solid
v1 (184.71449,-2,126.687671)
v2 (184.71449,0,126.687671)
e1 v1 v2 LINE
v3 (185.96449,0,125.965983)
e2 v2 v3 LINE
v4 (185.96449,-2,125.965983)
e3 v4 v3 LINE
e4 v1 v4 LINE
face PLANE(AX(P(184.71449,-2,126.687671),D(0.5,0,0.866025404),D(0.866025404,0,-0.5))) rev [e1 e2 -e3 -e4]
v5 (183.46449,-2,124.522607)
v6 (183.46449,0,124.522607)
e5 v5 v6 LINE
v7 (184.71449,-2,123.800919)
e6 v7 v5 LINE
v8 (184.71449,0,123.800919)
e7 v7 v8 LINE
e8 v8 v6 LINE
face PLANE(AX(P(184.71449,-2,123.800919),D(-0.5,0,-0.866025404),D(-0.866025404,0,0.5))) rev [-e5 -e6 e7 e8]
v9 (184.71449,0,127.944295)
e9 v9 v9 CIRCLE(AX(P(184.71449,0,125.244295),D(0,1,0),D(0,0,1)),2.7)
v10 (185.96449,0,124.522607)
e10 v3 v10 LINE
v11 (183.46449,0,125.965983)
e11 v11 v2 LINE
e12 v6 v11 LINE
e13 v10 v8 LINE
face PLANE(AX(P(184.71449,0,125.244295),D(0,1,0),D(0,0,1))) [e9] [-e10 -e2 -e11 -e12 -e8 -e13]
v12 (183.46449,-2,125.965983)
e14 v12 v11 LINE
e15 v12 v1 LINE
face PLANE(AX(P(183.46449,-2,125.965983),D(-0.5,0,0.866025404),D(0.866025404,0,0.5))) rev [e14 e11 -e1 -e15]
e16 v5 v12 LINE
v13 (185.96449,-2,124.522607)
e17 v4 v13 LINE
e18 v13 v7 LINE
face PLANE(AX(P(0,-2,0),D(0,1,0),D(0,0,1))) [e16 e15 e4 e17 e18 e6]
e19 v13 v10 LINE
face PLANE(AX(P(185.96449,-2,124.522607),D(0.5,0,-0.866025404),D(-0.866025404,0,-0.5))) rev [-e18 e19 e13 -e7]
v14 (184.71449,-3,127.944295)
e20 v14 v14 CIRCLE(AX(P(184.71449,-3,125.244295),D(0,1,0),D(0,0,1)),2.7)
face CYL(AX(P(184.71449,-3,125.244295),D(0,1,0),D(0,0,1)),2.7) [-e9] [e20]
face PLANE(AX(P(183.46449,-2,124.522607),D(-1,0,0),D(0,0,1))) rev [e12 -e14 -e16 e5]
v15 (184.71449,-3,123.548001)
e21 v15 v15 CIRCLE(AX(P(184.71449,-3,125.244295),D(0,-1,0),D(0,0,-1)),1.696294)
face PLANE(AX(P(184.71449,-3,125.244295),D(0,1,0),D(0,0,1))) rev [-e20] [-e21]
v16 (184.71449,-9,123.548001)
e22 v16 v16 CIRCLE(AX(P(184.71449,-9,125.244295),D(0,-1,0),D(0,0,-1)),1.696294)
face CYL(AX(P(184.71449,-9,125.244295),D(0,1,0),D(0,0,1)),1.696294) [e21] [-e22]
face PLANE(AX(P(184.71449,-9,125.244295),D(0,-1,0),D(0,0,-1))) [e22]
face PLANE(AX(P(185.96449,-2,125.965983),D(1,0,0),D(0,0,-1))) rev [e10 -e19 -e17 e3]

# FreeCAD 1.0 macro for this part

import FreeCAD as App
import Part
import Sketcher
from FreeCAD import Vector
Q = App.Units.Quantity

doc = App.newDocument("Part")
body = doc.addObject("PartDesign::Body", "Body")

# Sketch on XZ plane
sketch1 = doc.addObject("Sketcher::SketchObject", "Sketch")
body.addObject(sketch1)
sketch1.AttachmentSupport = (doc.XZ_Plane, [""])
sketch1.MapMode = "FlatFace"
sketch1.addGeometry(Part.Circle(Vector(184.7, 125.2, 0), Vector(0, 0, 1), 2.7), False)
sketch1.addConstraint([
    Sketcher.Constraint("Diameter", 0, Q("5.4 mm")),
    Sketcher.Constraint("DistanceX", -1, 1, 0, 3, Q("184.71449 mm")),
    Sketcher.Constraint("DistanceY", -1, 1, 0, 3, Q("125.244295 mm")),
])
pad1 = doc.addObject("PartDesign::Pad", "Pad")
body.addObject(pad1)
pad1.Profile = sketch1
pad1.Length = 3

# Sketch on XZ plane
sketch2 = doc.addObject("Sketcher::SketchObject", "Sketch001")
body.addObject(sketch2)
sketch2.AttachmentSupport = (doc.XZ_Plane, [""])
sketch2.MapMode = "FlatFace"
sketch2.AttachmentOffset = App.Placement(Vector(0, 0, 3), App.Rotation())
sketch2.addGeometry(Part.Circle(Vector(184.7, 125.2, 0), Vector(0, 0, 1), 1.7), False)
sketch2.addConstraint([
    Sketcher.Constraint("Diameter", 0, Q("3.392587 mm")),
    Sketcher.Constraint("DistanceX", -1, 1, 0, 3, Q("184.71449 mm")),
    Sketcher.Constraint("DistanceY", -1, 1, 0, 3, Q("125.244295 mm")),
])
pad2 = doc.addObject("PartDesign::Pad", "Pad001")
body.addObject(pad2)
pad2.Profile = sketch2
pad2.Length = 6

# Sketch on XZ plane
sketch3 = doc.addObject("Sketcher::SketchObject", "Sketch002")
body.addObject(sketch3)
sketch3.AttachmentSupport = (doc.XZ_Plane, [""])
sketch3.MapMode = "FlatFace"
sketch3.addGeometry([
    Part.LineSegment(Vector(184.7, 123.8, 0), Vector(183.5, 124.5, 0)),  # 0
    Part.LineSegment(Vector(183.5, 124.5, 0), Vector(183.5, 126, 0)),  # 1
    Part.LineSegment(Vector(183.5, 126, 0), Vector(184.7, 126.7, 0)),  # 2
    Part.LineSegment(Vector(184.7, 126.7, 0), Vector(186, 126, 0)),  # 3
    Part.LineSegment(Vector(186, 126, 0), Vector(186, 124.5, 0)),  # 4
    Part.LineSegment(Vector(186, 124.5, 0), Vector(184.7, 123.8, 0)),  # 5
], False)
sketch3.addConstraint([
    Sketcher.Constraint("Coincident", 0, 2, 1, 1),
    Sketcher.Constraint("Coincident", 1, 2, 2, 1),
    Sketcher.Constraint("Coincident", 2, 2, 3, 1),
    Sketcher.Constraint("Coincident", 3, 2, 4, 1),
    Sketcher.Constraint("Coincident", 4, 2, 5, 1),
    Sketcher.Constraint("Coincident", 5, 2, 0, 1),
    Sketcher.Constraint("Vertical", 1),
    Sketcher.Constraint("Vertical", 4),
    Sketcher.Constraint("Parallel", 0, 3),
    Sketcher.Constraint("Parallel", 2, 5),
    Sketcher.Constraint("Horizontal", 1, 2, 3, 2),
    Sketcher.Constraint("Horizontal", 0, 2, 4, 2),
    Sketcher.Constraint("Vertical", 2, 2, 5, 2),
    Sketcher.Constraint("Angle", 0, Q("150 deg")),
    Sketcher.Constraint("DistanceX", 1, 2, 3, 2, Q("2.5 mm")),
    Sketcher.Constraint("DistanceY", 1, 1, 1, 2, Q("1.443376 mm")),
    Sketcher.Constraint("DistanceX", -1, 1, 0, 2, Q("183.46449 mm")),
    Sketcher.Constraint("DistanceY", -1, 1, 2, 2, Q("126.687671 mm")),
])
pocket1 = doc.addObject("PartDesign::Pocket", "Pocket")
body.addObject(pocket1)
pocket1.Profile = sketch3
pocket1.Length = 2
pocket1.Reversed = True

doc.recompute()
